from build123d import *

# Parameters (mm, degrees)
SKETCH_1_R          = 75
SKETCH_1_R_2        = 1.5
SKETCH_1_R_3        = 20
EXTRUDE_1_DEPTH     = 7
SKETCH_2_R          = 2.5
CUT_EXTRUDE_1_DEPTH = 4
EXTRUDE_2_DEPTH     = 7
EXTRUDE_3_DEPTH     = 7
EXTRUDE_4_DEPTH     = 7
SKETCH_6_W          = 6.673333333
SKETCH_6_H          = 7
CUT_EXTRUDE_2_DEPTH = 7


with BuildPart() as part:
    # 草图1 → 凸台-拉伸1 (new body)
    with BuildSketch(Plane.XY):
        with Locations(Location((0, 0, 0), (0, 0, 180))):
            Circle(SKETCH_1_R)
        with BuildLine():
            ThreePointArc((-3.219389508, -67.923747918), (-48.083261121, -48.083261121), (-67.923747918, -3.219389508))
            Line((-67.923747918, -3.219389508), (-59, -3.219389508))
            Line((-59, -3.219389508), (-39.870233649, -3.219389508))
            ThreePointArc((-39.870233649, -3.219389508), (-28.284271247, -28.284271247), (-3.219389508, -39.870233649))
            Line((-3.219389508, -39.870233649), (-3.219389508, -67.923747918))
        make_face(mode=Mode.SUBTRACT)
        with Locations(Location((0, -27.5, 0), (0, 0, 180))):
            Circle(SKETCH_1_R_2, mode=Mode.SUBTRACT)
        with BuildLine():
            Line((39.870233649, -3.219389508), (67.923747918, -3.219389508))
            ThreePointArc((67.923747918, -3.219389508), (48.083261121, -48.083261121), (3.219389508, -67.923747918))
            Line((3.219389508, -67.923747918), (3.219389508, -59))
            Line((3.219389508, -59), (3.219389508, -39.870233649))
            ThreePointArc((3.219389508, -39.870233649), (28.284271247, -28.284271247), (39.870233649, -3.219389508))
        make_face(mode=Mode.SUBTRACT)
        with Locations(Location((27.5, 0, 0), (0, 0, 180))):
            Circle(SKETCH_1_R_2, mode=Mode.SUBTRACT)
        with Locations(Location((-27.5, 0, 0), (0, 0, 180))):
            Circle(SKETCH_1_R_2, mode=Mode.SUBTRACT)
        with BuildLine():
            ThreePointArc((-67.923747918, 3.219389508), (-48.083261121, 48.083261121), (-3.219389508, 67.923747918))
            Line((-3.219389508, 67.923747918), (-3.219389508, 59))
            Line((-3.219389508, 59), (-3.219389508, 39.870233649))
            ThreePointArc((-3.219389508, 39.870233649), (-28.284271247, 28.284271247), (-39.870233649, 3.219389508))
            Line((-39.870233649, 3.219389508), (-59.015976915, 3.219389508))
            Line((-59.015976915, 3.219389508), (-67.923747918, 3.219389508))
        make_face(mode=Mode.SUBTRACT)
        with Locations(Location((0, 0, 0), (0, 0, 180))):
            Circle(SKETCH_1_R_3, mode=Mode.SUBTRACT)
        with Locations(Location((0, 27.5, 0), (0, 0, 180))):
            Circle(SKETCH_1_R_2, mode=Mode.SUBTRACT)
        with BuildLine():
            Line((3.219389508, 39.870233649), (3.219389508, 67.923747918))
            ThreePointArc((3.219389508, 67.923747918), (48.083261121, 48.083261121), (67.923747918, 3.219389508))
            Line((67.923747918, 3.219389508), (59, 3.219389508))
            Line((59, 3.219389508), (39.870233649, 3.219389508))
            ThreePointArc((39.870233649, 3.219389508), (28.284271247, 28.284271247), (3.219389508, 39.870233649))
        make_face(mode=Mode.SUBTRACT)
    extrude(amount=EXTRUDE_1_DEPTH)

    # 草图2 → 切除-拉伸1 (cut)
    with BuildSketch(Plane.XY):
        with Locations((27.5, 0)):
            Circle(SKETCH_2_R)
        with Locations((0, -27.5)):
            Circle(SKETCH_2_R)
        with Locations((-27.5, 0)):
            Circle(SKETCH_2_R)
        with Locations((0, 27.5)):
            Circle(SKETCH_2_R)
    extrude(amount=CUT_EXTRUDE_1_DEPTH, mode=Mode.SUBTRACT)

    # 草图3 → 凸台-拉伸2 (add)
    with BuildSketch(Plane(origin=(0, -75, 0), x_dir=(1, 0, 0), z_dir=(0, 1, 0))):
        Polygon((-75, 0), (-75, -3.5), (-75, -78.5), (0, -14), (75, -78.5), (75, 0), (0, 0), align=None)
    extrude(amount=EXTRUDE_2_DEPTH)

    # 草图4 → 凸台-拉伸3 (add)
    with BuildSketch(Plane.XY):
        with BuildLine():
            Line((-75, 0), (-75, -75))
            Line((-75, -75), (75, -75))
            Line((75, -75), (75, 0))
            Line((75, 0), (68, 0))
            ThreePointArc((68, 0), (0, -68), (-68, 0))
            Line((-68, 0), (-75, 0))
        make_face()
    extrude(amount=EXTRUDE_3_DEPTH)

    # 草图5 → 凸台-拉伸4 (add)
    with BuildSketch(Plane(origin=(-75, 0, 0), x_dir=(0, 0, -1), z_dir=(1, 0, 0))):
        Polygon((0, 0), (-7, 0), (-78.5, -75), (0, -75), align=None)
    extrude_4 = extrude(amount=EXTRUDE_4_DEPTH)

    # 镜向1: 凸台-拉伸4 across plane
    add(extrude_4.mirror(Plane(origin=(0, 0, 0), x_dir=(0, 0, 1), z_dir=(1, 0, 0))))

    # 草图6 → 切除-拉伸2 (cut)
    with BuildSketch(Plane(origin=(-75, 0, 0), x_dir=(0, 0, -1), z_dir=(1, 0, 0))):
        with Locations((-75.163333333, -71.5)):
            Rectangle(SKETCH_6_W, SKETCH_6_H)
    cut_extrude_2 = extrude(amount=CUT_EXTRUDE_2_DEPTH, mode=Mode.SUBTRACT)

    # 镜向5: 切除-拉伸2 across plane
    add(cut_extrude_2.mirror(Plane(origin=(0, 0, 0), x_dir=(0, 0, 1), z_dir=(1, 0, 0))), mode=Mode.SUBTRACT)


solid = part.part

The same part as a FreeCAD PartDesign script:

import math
import FreeCAD as App
import Part
import Sketcher
Q = App.Units.Quantity

doc = App.newDocument("Part")
params = doc.addObject("Spreadsheet::Sheet", "Params")
for row, (alias, value) in enumerate([
    ("sketch1_diameter", "150 mm"),
    ("sketch1_diameter2", "3 mm"),
    ("sketch1_diameter3", "40 mm"),
    ("sketch1_radius", "40 mm"),
    ("sketch1_radius2", "68 mm"),
    ("pad1_length", "7 mm"),
    ("sketch2_diameter", "5 mm"),
    ("pocket1_length", "4 mm"),
    ("sketch3_width", "150 mm"),
    ("sketch3_height", "78.5 mm"),
    ("pad2_length", "7 mm"),
    ("sketch4_radius", "68 mm"),
    ("sketch4_width", "150 mm"),
    ("sketch4_height", "75 mm"),
    ("pad3_length", "7 mm"),
    ("sketch5_width", "75 mm"),
    ("sketch5_height", "7 mm"),
    ("sketch5_height2", "78.5 mm"),
    ("pad4_length", "7 mm"),
    ("sketch6_width", "7 mm"),
    ("pocket2_length", "7 mm"),
], start=1):
    params.set(f"A{row}", alias)
    params.set(f"B{row}", "=" + value)
    params.setAlias(f"B{row}", alias)

body = doc.addObject("PartDesign::Body", "Body")

# Sketch on XY plane
sketch1 = body.newObject("Sketcher::SketchObject", "Sketch")
sketch1.AttachmentSupport = (doc.getObject("XY_Plane"), [""])
sketch1.MapMode = "FlatFace"
sketch1.addGeometry(Part.Circle(App.Vector(0, 0, 0), App.Vector(0, 0, 1), 75), False)
sketch1.addGeometry(Part.ArcOfCircle(Part.Circle(App.Vector(0, 0, 0), App.Vector(0, 0, 1), 40), math.radians(5), math.radians(85)), False)
sketch1.addGeometry(Part.LineSegment(App.Vector(3.2, 39.9, 0), App.Vector(3.2, 67.9, 0)), False)
sketch1.addGeometry(Part.ArcOfCircle(Part.Circle(App.Vector(0, 0, 0), App.Vector(0, 0, 1), 68), math.radians(3), math.radians(87)), False)
sketch1.addGeometry(Part.LineSegment(App.Vector(67.9, 3.2, 0), App.Vector(39.9, 3.2, 0)), False)
sketch1.addGeometry(Part.LineSegment(App.Vector(-39.9, 3.2, 0), App.Vector(-67.9, 3.2, 0)), False)
sketch1.addGeometry(Part.ArcOfCircle(Part.Circle(App.Vector(0, 0, 0), App.Vector(0, 0, 1), 68), math.radians(93), math.radians(177)), False)
sketch1.addGeometry(Part.LineSegment(App.Vector(-3.2, 67.9, 0), App.Vector(-3.2, 39.9, 0)), False)
sketch1.addGeometry(Part.ArcOfCircle(Part.Circle(App.Vector(0, 0, 0), App.Vector(0, 0, 1), 40), math.radians(95), math.radians(175)), False)
sketch1.addGeometry(Part.Circle(App.Vector(0, 27.5, 0), App.Vector(0, 0, 1), 1.5), False)
sketch1.addGeometry(Part.Circle(App.Vector(27.5, 0, 0), App.Vector(0, 0, 1), 1.5), False)
sketch1.addGeometry(Part.Circle(App.Vector(0, 0, 0), App.Vector(0, 0, 1), 20), False)
sketch1.addGeometry(Part.Circle(App.Vector(0, -27.5, 0), App.Vector(0, 0, 1), 1.5), False)
sketch1.addGeometry(Part.ArcOfCircle(Part.Circle(App.Vector(0, 0, 0), App.Vector(0, 0, 1), 40), math.radians(-85), math.radians(-5)), False)
sketch1.addGeometry(Part.LineSegment(App.Vector(39.9, -3.2, 0), App.Vector(67.9, -3.2, 0)), False)
sketch1.addGeometry(Part.ArcOfCircle(Part.Circle(App.Vector(0, 0, 0), App.Vector(0, 0, 1), 68), math.radians(-87), math.radians(-3)), False)
sketch1.addGeometry(Part.LineSegment(App.Vector(3.2, -67.9, 0), App.Vector(3.2, -39.9, 0)), False)
sketch1.addGeometry(Part.Circle(App.Vector(-27.5, 0, 0), App.Vector(0, 0, 1), 1.5), False)
sketch1.addGeometry(Part.LineSegment(App.Vector(-3.2, -39.9, 0), App.Vector(-3.2, -67.9, 0)), False)
sketch1.addGeometry(Part.ArcOfCircle(Part.Circle(App.Vector(0, 0, 0), App.Vector(0, 0, 1), 68), math.radians(-177), math.radians(-93)), False)
sketch1.addGeometry(Part.LineSegment(App.Vector(-67.9, -3.2, 0), App.Vector(-39.9, -3.2, 0)), False)
sketch1.addGeometry(Part.ArcOfCircle(Part.Circle(App.Vector(0, 0, 0), App.Vector(0, 0, 1), 40), math.radians(-175), math.radians(-95)), False)
sketch1.addConstraint(Sketcher.Constraint("Coincident", 1, 2, 2, 1))
sketch1.addConstraint(Sketcher.Constraint("Coincident", 2, 2, 3, 2))
sketch1.addConstraint(Sketcher.Constraint("Coincident", 3, 1, 4, 1))
sketch1.addConstraint(Sketcher.Constraint("Coincident", 4, 2, 1, 1))
sketch1.addConstraint(Sketcher.Constraint("Coincident", 5, 2, 6, 2))
sketch1.addConstraint(Sketcher.Constraint("Coincident", 6, 1, 7, 1))
sketch1.addConstraint(Sketcher.Constraint("Coincident", 7, 2, 8, 1))
sketch1.addConstraint(Sketcher.Constraint("Coincident", 8, 2, 5, 1))
sketch1.addConstraint(Sketcher.Constraint("Coincident", 13, 2, 14, 1))
sketch1.addConstraint(Sketcher.Constraint("Coincident", 14, 2, 15, 2))
sketch1.addConstraint(Sketcher.Constraint("Coincident", 15, 1, 16, 1))
sketch1.addConstraint(Sketcher.Constraint("Coincident", 16, 2, 13, 1))
sketch1.addConstraint(Sketcher.Constraint("Coincident", 18, 2, 19, 2))
sketch1.addConstraint(Sketcher.Constraint("Coincident", 19, 1, 20, 1))
sketch1.addConstraint(Sketcher.Constraint("Coincident", 20, 2, 21, 1))
sketch1.addConstraint(Sketcher.Constraint("Coincident", 21, 2, 18, 1))
sketch1.addConstraint(Sketcher.Constraint("Vertical", 2))
sketch1.addConstraint(Sketcher.Constraint("Horizontal", 4))
sketch1.addConstraint(Sketcher.Constraint("Horizontal", 5))
sketch1.addConstraint(Sketcher.Constraint("Vertical", 7))
sketch1.addConstraint(Sketcher.Constraint("Horizontal", 14))
sketch1.addConstraint(Sketcher.Constraint("Vertical", 16))
sketch1.addConstraint(Sketcher.Constraint("Vertical", 18))
sketch1.addConstraint(Sketcher.Constraint("Horizontal", 20))
sketch1.addConstraint(Sketcher.Constraint("Coincident", 0, 3, -1, 1))
sketch1.addConstraint(Sketcher.Constraint("Coincident", 1, 3, -1, 1))
sketch1.addConstraint(Sketcher.Constraint("Coincident", 3, 3, -1, 1))
sketch1.addConstraint(Sketcher.Constraint("Coincident", 6, 3, -1, 1))
sketch1.addConstraint(Sketcher.Constraint("Coincident", 8, 3, -1, 1))
sketch1.addConstraint(Sketcher.Constraint("Coincident", 11, 3, -1, 1))
sketch1.addConstraint(Sketcher.Constraint("Coincident", 13, 3, -1, 1))
sketch1.addConstraint(Sketcher.Constraint("Coincident", 15, 3, -1, 1))
sketch1.addConstraint(Sketcher.Constraint("Coincident", 19, 3, -1, 1))
sketch1.addConstraint(Sketcher.Constraint("Coincident", 21, 3, -1, 1))
sketch1.addConstraint(Sketcher.Constraint("Equal", 3, 6))
sketch1.addConstraint(Sketcher.Constraint("Equal", 1, 8))
sketch1.addConstraint(Sketcher.Constraint("Equal", 9, 10))
sketch1.addConstraint(Sketcher.Constraint("Equal", 10, 12))
sketch1.addConstraint(Sketcher.Constraint("Equal", 8, 13))
sketch1.addConstraint(Sketcher.Constraint("Equal", 6, 15))
sketch1.addConstraint(Sketcher.Constraint("Equal", 12, 17))
sketch1.addConstraint(Sketcher.Constraint("Equal", 15, 19))
sketch1.addConstraint(Sketcher.Constraint("Equal", 13, 21))
sketch1.addConstraint(Sketcher.Constraint("Symmetric", 9, 3, 12, 3, -1, 1))
sketch1.addConstraint(Sketcher.Constraint("Symmetric", 10, 3, 17, 3, -1, 1))
sketch1.addConstraint(Sketcher.Constraint("PointOnObject", 9, 3, -2))
sketch1.addConstraint(Sketcher.Constraint("PointOnObject", 10, 3, -1))
sketch1.addConstraint(Sketcher.Constraint("Horizontal", 4, 2, 5, 2))
sketch1.addConstraint(Sketcher.Constraint("Horizontal", 2, 2, 6, 1))
sketch1.addConstraint(Sketcher.Constraint("Horizontal", 15, 1, 18, 2))
sketch1.addConstraint(Sketcher.Constraint("Horizontal", 14, 2, 19, 1))
sketch1.addConstraint(Sketcher.Constraint("Vertical", 4, 2, 13, 2))
sketch1.addConstraint(Sketcher.Constraint("Vertical", 2, 2, 15, 1))
sketch1.addConstraint(Sketcher.Constraint("Equal", 20, 2))
sketch1.addConstraint(Sketcher.Constraint("Diameter", 0, Q("150 mm")))
sketch1.addConstraint(Sketcher.Constraint("Diameter", 9, Q("3 mm")))
sketch1.addConstraint(Sketcher.Constraint("Diameter", 11, Q("40 mm")))
sketch1.addConstraint(Sketcher.Constraint("Radius", 1, Q("40 mm")))
sketch1.addConstraint(Sketcher.Constraint("Radius", 3, Q("68 mm")))
sketch1.addConstraint(Sketcher.Constraint("DistanceY", -1, 1, 9, 3, Q("27.5 mm")))
sketch1.addConstraint(Sketcher.Constraint("DistanceX", -1, 1, 10, 3, Q("27.5 mm")))
sketch1.addConstraint(Sketcher.Constraint("DistanceX", 4, 2, 4, 1, Q("28.053514 mm")))
sketch1.setExpression("Constraints[54]", "Params.sketch1_diameter")
sketch1.setExpression("Constraints[55]", "Params.sketch1_diameter2")
sketch1.setExpression("Constraints[56]", "Params.sketch1_diameter3")
sketch1.setExpression("Constraints[57]", "Params.sketch1_radius")
sketch1.setExpression("Constraints[58]", "Params.sketch1_radius2")
pad1 = body.newObject("PartDesign::Pad", "Pad")
pad1.Profile = sketch1
pad1.setExpression("Length", "Params.pad1_length")

# Sketch on XY plane
sketch2 = body.newObject("Sketcher::SketchObject", "Sketch001")
sketch2.AttachmentSupport = (doc.getObject("XY_Plane"), [""])
sketch2.MapMode = "FlatFace"
sketch2.addGeometry(Part.Circle(App.Vector(27.5, 0, 0), App.Vector(0, 0, 1), 2.5), False)
sketch2.addGeometry(Part.Circle(App.Vector(0, -27.5, 0), App.Vector(0, 0, 1), 2.5), False)
sketch2.addGeometry(Part.Circle(App.Vector(-27.5, 0, 0), App.Vector(0, 0, 1), 2.5), False)
sketch2.addGeometry(Part.Circle(App.Vector(0, 27.5, 0), App.Vector(0, 0, 1), 2.5), False)
sketch2.addConstraint(Sketcher.Constraint("Equal", 0, 1))
sketch2.addConstraint(Sketcher.Constraint("Equal", 1, 2))
sketch2.addConstraint(Sketcher.Constraint("Equal", 2, 3))
sketch2.addConstraint(Sketcher.Constraint("Symmetric", 0, 3, 2, 3, -1, 1))
sketch2.addConstraint(Sketcher.Constraint("Symmetric", 1, 3, 3, 3, -1, 1))
sketch2.addConstraint(Sketcher.Constraint("PointOnObject", 0, 3, -1))
sketch2.addConstraint(Sketcher.Constraint("PointOnObject", 1, 3, -2))
sketch2.addConstraint(Sketcher.Constraint("Diameter", 0, Q("5 mm")))
sketch2.addConstraint(Sketcher.Constraint("DistanceX", 2, 3, 0, 3, Q("55 mm")))
sketch2.addConstraint(Sketcher.Constraint("DistanceY", 1, 3, 3, 3, Q("55 mm")))
sketch2.setExpression("Constraints[7]", "Params.sketch2_diameter")
pocket1 = body.newObject("PartDesign::Pocket", "Pocket")
pocket1.Profile = sketch2
pocket1.setExpression("Length", "Params.pocket1_length")
pocket1.Reversed = True

# Sketch on XZ plane
sketch3 = body.newObject("Sketcher::SketchObject", "Sketch002")
sketch3.AttachmentSupport = (doc.getObject("XZ_Plane"), [""])
sketch3.MapMode = "FlatFace"
sketch3.AttachmentOffset = App.Placement(App.Vector(0, 0, 75), App.Rotation())
sketch3.addGeometry(Part.LineSegment(App.Vector(-75, 0, 0), App.Vector(-75, 78, 0)), False)
sketch3.addGeometry(Part.LineSegment(App.Vector(-75, 78, 0), App.Vector(0, 14, 0)), False)
sketch3.addGeometry(Part.LineSegment(App.Vector(0, 14, 0), App.Vector(75, 78, 0)), False)
sketch3.addGeometry(Part.LineSegment(App.Vector(75, 78, 0), App.Vector(75, 0, 0)), False)
sketch3.addGeometry(Part.LineSegment(App.Vector(75, 0, 0), App.Vector(-75, 0, 0)), False)
sketch3.addConstraint(Sketcher.Constraint("Coincident", 0, 2, 1, 1))
sketch3.addConstraint(Sketcher.Constraint("Coincident", 1, 2, 2, 1))
sketch3.addConstraint(Sketcher.Constraint("Coincident", 2, 2, 3, 1))
sketch3.addConstraint(Sketcher.Constraint("Coincident", 3, 2, 4, 1))
sketch3.addConstraint(Sketcher.Constraint("Coincident", 4, 2, 0, 1))
sketch3.addConstraint(Sketcher.Constraint("Vertical", 0))
sketch3.addConstraint(Sketcher.Constraint("Vertical", 3))
sketch3.addConstraint(Sketcher.Constraint("Horizontal", 4))
sketch3.addConstraint(Sketcher.Constraint("Symmetric", 3, 2, 4, 2, -1, 1))
sketch3.addConstraint(Sketcher.Constraint("PointOnObject", 1, 2, -2))
sketch3.addConstraint(Sketcher.Constraint("Horizontal", 0, 2, 2, 2))
sketch3.addConstraint(Sketcher.Constraint("DistanceX", 4, 2, 4, 1, Q("150 mm")))
sketch3.addConstraint(Sketcher.Constraint("DistanceY", 0, 1, 0, 2, Q("78.5 mm")))
sketch3.addConstraint(Sketcher.Constraint("DistanceY", -1, 1, 1, 2, Q("14 mm")))
sketch3.setExpression("Constraints[11]", "Params.sketch3_width")
sketch3.setExpression("Constraints[12]", "Params.sketch3_height")
pad2 = body.newObject("PartDesign::Pad", "Pad001")
pad2.Profile = sketch3
pad2.setExpression("Length", "Params.pad2_length")
pad2.Reversed = True

# Sketch on XY plane
sketch4 = body.newObject("Sketcher::SketchObject", "Sketch003")
sketch4.AttachmentSupport = (doc.getObject("XY_Plane"), [""])
sketch4.MapMode = "FlatFace"
sketch4.addGeometry(Part.LineSegment(App.Vector(-75, 0, 0), App.Vector(-75, -75, 0)), False)
sketch4.addGeometry(Part.LineSegment(App.Vector(-75, -75, 0), App.Vector(75, -75, 0)), False)
sketch4.addGeometry(Part.LineSegment(App.Vector(75, -75, 0), App.Vector(75, 0, 0)), False)
sketch4.addGeometry(Part.LineSegment(App.Vector(75, 0, 0), App.Vector(68, 0, 0)), False)
sketch4.addGeometry(Part.ArcOfCircle(Part.Circle(App.Vector(0, 0, 0), App.Vector(0, 0, 1), 68), math.radians(180), math.radians(360)), False)
sketch4.addGeometry(Part.LineSegment(App.Vector(-68, 0, 0), App.Vector(-75, 0, 0)), False)
sketch4.addConstraint(Sketcher.Constraint("Coincident", 0, 2, 1, 1))
sketch4.addConstraint(Sketcher.Constraint("Coincident", 1, 2, 2, 1))
sketch4.addConstraint(Sketcher.Constraint("Coincident", 2, 2, 3, 1))
sketch4.addConstraint(Sketcher.Constraint("Coincident", 3, 2, 4, 2))
sketch4.addConstraint(Sketcher.Constraint("Coincident", 4, 1, 5, 1))
sketch4.addConstraint(Sketcher.Constraint("Coincident", 5, 2, 0, 1))
sketch4.addConstraint(Sketcher.Constraint("Vertical", 0))
sketch4.addConstraint(Sketcher.Constraint("Horizontal", 1))
sketch4.addConstraint(Sketcher.Constraint("Vertical", 2))
sketch4.addConstraint(Sketcher.Constraint("Horizontal", 3))
sketch4.addConstraint(Sketcher.Constraint("Horizontal", 5))
sketch4.addConstraint(Sketcher.Constraint("Coincident", 4, 3, -1, 1))
sketch4.addConstraint(Sketcher.Constraint("Symmetric", 2, 2, 5, 2, -1, 1))
sketch4.addConstraint(Sketcher.Constraint("PointOnObject", 2, 2, -1))
sketch4.addConstraint(Sketcher.Constraint("Radius", 4, Q("68 mm")))
sketch4.addConstraint(Sketcher.Constraint("DistanceX", 1, 1, 1, 2, Q("150 mm")))
sketch4.addConstraint(Sketcher.Constraint("DistanceY", 0, 2, 0, 1, Q("75 mm")))
sketch4.setExpression("Constraints[14]", "Params.sketch4_radius")
sketch4.setExpression("Constraints[15]", "Params.sketch4_width")
sketch4.setExpression("Constraints[16]", "Params.sketch4_height")
pad3 = body.newObject("PartDesign::Pad", "Pad002")
pad3.Profile = sketch4
pad3.setExpression("Length", "Params.pad3_length")

# Sketch on YZ plane
sketch5 = body.newObject("Sketcher::SketchObject", "Sketch004")
sketch5.AttachmentSupport = (doc.getObject("YZ_Plane"), [""])
sketch5.MapMode = "FlatFace"
sketch5.AttachmentOffset = App.Placement(App.Vector(0, 0, -75), App.Rotation())
sketch5.addGeometry(Part.LineSegment(App.Vector(0, 0, 0), App.Vector(0, 7, 0)), False)
sketch5.addGeometry(Part.LineSegment(App.Vector(0, 7, 0), App.Vector(-75, 78, 0)), False)
sketch5.addGeometry(Part.LineSegment(App.Vector(-75, 78, 0), App.Vector(-75, 0, 0)), False)
sketch5.addGeometry(Part.LineSegment(App.Vector(-75, 0, 0), App.Vector(0, 0, 0)), False)
sketch5.addConstraint(Sketcher.Constraint("Coincident", 0, 2, 1, 1))
sketch5.addConstraint(Sketcher.Constraint("Coincident", 1, 2, 2, 1))
sketch5.addConstraint(Sketcher.Constraint("Coincident", 2, 2, 3, 1))
sketch5.addConstraint(Sketcher.Constraint("Coincident", 3, 2, 0, 1))
sketch5.addConstraint(Sketcher.Constraint("Vertical", 0))
sketch5.addConstraint(Sketcher.Constraint("Vertical", 2))
sketch5.addConstraint(Sketcher.Constraint("Horizontal", 3))
sketch5.addConstraint(Sketcher.Constraint("Coincident", 3, 2, -1, 1))
sketch5.addConstraint(Sketcher.Constraint("DistanceX", 3, 1, 3, 2, Q("75 mm")))
sketch5.addConstraint(Sketcher.Constraint("DistanceY", 0, 1, 0, 2, Q("7 mm")))
sketch5.addConstraint(Sketcher.Constraint("DistanceY", 2, 2, 2, 1, Q("78.5 mm")))
sketch5.setExpression("Constraints[8]", "Params.sketch5_width")
sketch5.setExpression("Constraints[9]", "Params.sketch5_height")
sketch5.setExpression("Constraints[10]", "Params.sketch5_height2")
pad4 = body.newObject("PartDesign::Pad", "Pad003")
pad4.Profile = sketch5
pad4.setExpression("Length", "Params.pad4_length")
doc.recompute()

mirrored = body.newObject("PartDesign::Mirrored", "Mirrored")
mirrored.Originals = [pad4]
mirrored.MirrorPlane = (doc.getObject("YZ_Plane"), [""])
body.Tip = mirrored

# Sketch on YZ plane
sketch6 = body.newObject("Sketcher::SketchObject", "Sketch005")
sketch6.AttachmentSupport = (doc.getObject("YZ_Plane"), [""])
sketch6.MapMode = "FlatFace"
sketch6.AttachmentOffset = App.Placement(App.Vector(0, 0, -75), App.Rotation())
sketch6.addGeometry(Part.LineSegment(App.Vector(-68, 78, 0), App.Vector(-75, 78, 0)), False)
sketch6.addGeometry(Part.LineSegment(App.Vector(-75, 78, 0), App.Vector(-75, 72, 0)), False)
sketch6.addGeometry(Part.LineSegment(App.Vector(-75, 72, 0), App.Vector(-68, 72, 0)), False)
sketch6.addGeometry(Part.LineSegment(App.Vector(-68, 72, 0), App.Vector(-68, 78, 0)), False)
sketch6.addConstraint(Sketcher.Constraint("Coincident", 0, 2, 1, 1))
sketch6.addConstraint(Sketcher.Constraint("Coincident", 1, 2, 2, 1))
sketch6.addConstraint(Sketcher.Constraint("Coincident", 2, 2, 3, 1))
sketch6.addConstraint(Sketcher.Constraint("Coincident", 3, 2, 0, 1))
sketch6.addConstraint(Sketcher.Constraint("Horizontal", 0))
sketch6.addConstraint(Sketcher.Constraint("Vertical", 1))
sketch6.addConstraint(Sketcher.Constraint("Horizontal", 2))
sketch6.addConstraint(Sketcher.Constraint("Vertical", 3))
sketch6.addConstraint(Sketcher.Constraint("DistanceX", 0, 2, 0, 1, Q("7 mm")))
sketch6.addConstraint(Sketcher.Constraint("DistanceX", 0, 2, -1, 1, Q("75 mm")))
sketch6.addConstraint(Sketcher.Constraint("DistanceY", -1, 1, 0, 2, Q("78.5 mm")))
sketch6.addConstraint(Sketcher.Constraint("DistanceY", 1, 2, 1, 1, Q("6.673333 mm")))
sketch6.setExpression("Constraints[8]", "Params.sketch6_width")
pocket2 = body.newObject("PartDesign::Pocket", "Pocket001")
pocket2.Profile = sketch6
pocket2.setExpression("Length", "Params.pocket2_length")
pocket2.Reversed = True
doc.recompute()

mirrored2 = body.newObject("PartDesign::Mirrored", "Mirrored001")
mirrored2.Originals = [pocket2]
mirrored2.MirrorPlane = (doc.getObject("YZ_Plane"), [""])
body.Tip = mirrored2

doc.recompute()
